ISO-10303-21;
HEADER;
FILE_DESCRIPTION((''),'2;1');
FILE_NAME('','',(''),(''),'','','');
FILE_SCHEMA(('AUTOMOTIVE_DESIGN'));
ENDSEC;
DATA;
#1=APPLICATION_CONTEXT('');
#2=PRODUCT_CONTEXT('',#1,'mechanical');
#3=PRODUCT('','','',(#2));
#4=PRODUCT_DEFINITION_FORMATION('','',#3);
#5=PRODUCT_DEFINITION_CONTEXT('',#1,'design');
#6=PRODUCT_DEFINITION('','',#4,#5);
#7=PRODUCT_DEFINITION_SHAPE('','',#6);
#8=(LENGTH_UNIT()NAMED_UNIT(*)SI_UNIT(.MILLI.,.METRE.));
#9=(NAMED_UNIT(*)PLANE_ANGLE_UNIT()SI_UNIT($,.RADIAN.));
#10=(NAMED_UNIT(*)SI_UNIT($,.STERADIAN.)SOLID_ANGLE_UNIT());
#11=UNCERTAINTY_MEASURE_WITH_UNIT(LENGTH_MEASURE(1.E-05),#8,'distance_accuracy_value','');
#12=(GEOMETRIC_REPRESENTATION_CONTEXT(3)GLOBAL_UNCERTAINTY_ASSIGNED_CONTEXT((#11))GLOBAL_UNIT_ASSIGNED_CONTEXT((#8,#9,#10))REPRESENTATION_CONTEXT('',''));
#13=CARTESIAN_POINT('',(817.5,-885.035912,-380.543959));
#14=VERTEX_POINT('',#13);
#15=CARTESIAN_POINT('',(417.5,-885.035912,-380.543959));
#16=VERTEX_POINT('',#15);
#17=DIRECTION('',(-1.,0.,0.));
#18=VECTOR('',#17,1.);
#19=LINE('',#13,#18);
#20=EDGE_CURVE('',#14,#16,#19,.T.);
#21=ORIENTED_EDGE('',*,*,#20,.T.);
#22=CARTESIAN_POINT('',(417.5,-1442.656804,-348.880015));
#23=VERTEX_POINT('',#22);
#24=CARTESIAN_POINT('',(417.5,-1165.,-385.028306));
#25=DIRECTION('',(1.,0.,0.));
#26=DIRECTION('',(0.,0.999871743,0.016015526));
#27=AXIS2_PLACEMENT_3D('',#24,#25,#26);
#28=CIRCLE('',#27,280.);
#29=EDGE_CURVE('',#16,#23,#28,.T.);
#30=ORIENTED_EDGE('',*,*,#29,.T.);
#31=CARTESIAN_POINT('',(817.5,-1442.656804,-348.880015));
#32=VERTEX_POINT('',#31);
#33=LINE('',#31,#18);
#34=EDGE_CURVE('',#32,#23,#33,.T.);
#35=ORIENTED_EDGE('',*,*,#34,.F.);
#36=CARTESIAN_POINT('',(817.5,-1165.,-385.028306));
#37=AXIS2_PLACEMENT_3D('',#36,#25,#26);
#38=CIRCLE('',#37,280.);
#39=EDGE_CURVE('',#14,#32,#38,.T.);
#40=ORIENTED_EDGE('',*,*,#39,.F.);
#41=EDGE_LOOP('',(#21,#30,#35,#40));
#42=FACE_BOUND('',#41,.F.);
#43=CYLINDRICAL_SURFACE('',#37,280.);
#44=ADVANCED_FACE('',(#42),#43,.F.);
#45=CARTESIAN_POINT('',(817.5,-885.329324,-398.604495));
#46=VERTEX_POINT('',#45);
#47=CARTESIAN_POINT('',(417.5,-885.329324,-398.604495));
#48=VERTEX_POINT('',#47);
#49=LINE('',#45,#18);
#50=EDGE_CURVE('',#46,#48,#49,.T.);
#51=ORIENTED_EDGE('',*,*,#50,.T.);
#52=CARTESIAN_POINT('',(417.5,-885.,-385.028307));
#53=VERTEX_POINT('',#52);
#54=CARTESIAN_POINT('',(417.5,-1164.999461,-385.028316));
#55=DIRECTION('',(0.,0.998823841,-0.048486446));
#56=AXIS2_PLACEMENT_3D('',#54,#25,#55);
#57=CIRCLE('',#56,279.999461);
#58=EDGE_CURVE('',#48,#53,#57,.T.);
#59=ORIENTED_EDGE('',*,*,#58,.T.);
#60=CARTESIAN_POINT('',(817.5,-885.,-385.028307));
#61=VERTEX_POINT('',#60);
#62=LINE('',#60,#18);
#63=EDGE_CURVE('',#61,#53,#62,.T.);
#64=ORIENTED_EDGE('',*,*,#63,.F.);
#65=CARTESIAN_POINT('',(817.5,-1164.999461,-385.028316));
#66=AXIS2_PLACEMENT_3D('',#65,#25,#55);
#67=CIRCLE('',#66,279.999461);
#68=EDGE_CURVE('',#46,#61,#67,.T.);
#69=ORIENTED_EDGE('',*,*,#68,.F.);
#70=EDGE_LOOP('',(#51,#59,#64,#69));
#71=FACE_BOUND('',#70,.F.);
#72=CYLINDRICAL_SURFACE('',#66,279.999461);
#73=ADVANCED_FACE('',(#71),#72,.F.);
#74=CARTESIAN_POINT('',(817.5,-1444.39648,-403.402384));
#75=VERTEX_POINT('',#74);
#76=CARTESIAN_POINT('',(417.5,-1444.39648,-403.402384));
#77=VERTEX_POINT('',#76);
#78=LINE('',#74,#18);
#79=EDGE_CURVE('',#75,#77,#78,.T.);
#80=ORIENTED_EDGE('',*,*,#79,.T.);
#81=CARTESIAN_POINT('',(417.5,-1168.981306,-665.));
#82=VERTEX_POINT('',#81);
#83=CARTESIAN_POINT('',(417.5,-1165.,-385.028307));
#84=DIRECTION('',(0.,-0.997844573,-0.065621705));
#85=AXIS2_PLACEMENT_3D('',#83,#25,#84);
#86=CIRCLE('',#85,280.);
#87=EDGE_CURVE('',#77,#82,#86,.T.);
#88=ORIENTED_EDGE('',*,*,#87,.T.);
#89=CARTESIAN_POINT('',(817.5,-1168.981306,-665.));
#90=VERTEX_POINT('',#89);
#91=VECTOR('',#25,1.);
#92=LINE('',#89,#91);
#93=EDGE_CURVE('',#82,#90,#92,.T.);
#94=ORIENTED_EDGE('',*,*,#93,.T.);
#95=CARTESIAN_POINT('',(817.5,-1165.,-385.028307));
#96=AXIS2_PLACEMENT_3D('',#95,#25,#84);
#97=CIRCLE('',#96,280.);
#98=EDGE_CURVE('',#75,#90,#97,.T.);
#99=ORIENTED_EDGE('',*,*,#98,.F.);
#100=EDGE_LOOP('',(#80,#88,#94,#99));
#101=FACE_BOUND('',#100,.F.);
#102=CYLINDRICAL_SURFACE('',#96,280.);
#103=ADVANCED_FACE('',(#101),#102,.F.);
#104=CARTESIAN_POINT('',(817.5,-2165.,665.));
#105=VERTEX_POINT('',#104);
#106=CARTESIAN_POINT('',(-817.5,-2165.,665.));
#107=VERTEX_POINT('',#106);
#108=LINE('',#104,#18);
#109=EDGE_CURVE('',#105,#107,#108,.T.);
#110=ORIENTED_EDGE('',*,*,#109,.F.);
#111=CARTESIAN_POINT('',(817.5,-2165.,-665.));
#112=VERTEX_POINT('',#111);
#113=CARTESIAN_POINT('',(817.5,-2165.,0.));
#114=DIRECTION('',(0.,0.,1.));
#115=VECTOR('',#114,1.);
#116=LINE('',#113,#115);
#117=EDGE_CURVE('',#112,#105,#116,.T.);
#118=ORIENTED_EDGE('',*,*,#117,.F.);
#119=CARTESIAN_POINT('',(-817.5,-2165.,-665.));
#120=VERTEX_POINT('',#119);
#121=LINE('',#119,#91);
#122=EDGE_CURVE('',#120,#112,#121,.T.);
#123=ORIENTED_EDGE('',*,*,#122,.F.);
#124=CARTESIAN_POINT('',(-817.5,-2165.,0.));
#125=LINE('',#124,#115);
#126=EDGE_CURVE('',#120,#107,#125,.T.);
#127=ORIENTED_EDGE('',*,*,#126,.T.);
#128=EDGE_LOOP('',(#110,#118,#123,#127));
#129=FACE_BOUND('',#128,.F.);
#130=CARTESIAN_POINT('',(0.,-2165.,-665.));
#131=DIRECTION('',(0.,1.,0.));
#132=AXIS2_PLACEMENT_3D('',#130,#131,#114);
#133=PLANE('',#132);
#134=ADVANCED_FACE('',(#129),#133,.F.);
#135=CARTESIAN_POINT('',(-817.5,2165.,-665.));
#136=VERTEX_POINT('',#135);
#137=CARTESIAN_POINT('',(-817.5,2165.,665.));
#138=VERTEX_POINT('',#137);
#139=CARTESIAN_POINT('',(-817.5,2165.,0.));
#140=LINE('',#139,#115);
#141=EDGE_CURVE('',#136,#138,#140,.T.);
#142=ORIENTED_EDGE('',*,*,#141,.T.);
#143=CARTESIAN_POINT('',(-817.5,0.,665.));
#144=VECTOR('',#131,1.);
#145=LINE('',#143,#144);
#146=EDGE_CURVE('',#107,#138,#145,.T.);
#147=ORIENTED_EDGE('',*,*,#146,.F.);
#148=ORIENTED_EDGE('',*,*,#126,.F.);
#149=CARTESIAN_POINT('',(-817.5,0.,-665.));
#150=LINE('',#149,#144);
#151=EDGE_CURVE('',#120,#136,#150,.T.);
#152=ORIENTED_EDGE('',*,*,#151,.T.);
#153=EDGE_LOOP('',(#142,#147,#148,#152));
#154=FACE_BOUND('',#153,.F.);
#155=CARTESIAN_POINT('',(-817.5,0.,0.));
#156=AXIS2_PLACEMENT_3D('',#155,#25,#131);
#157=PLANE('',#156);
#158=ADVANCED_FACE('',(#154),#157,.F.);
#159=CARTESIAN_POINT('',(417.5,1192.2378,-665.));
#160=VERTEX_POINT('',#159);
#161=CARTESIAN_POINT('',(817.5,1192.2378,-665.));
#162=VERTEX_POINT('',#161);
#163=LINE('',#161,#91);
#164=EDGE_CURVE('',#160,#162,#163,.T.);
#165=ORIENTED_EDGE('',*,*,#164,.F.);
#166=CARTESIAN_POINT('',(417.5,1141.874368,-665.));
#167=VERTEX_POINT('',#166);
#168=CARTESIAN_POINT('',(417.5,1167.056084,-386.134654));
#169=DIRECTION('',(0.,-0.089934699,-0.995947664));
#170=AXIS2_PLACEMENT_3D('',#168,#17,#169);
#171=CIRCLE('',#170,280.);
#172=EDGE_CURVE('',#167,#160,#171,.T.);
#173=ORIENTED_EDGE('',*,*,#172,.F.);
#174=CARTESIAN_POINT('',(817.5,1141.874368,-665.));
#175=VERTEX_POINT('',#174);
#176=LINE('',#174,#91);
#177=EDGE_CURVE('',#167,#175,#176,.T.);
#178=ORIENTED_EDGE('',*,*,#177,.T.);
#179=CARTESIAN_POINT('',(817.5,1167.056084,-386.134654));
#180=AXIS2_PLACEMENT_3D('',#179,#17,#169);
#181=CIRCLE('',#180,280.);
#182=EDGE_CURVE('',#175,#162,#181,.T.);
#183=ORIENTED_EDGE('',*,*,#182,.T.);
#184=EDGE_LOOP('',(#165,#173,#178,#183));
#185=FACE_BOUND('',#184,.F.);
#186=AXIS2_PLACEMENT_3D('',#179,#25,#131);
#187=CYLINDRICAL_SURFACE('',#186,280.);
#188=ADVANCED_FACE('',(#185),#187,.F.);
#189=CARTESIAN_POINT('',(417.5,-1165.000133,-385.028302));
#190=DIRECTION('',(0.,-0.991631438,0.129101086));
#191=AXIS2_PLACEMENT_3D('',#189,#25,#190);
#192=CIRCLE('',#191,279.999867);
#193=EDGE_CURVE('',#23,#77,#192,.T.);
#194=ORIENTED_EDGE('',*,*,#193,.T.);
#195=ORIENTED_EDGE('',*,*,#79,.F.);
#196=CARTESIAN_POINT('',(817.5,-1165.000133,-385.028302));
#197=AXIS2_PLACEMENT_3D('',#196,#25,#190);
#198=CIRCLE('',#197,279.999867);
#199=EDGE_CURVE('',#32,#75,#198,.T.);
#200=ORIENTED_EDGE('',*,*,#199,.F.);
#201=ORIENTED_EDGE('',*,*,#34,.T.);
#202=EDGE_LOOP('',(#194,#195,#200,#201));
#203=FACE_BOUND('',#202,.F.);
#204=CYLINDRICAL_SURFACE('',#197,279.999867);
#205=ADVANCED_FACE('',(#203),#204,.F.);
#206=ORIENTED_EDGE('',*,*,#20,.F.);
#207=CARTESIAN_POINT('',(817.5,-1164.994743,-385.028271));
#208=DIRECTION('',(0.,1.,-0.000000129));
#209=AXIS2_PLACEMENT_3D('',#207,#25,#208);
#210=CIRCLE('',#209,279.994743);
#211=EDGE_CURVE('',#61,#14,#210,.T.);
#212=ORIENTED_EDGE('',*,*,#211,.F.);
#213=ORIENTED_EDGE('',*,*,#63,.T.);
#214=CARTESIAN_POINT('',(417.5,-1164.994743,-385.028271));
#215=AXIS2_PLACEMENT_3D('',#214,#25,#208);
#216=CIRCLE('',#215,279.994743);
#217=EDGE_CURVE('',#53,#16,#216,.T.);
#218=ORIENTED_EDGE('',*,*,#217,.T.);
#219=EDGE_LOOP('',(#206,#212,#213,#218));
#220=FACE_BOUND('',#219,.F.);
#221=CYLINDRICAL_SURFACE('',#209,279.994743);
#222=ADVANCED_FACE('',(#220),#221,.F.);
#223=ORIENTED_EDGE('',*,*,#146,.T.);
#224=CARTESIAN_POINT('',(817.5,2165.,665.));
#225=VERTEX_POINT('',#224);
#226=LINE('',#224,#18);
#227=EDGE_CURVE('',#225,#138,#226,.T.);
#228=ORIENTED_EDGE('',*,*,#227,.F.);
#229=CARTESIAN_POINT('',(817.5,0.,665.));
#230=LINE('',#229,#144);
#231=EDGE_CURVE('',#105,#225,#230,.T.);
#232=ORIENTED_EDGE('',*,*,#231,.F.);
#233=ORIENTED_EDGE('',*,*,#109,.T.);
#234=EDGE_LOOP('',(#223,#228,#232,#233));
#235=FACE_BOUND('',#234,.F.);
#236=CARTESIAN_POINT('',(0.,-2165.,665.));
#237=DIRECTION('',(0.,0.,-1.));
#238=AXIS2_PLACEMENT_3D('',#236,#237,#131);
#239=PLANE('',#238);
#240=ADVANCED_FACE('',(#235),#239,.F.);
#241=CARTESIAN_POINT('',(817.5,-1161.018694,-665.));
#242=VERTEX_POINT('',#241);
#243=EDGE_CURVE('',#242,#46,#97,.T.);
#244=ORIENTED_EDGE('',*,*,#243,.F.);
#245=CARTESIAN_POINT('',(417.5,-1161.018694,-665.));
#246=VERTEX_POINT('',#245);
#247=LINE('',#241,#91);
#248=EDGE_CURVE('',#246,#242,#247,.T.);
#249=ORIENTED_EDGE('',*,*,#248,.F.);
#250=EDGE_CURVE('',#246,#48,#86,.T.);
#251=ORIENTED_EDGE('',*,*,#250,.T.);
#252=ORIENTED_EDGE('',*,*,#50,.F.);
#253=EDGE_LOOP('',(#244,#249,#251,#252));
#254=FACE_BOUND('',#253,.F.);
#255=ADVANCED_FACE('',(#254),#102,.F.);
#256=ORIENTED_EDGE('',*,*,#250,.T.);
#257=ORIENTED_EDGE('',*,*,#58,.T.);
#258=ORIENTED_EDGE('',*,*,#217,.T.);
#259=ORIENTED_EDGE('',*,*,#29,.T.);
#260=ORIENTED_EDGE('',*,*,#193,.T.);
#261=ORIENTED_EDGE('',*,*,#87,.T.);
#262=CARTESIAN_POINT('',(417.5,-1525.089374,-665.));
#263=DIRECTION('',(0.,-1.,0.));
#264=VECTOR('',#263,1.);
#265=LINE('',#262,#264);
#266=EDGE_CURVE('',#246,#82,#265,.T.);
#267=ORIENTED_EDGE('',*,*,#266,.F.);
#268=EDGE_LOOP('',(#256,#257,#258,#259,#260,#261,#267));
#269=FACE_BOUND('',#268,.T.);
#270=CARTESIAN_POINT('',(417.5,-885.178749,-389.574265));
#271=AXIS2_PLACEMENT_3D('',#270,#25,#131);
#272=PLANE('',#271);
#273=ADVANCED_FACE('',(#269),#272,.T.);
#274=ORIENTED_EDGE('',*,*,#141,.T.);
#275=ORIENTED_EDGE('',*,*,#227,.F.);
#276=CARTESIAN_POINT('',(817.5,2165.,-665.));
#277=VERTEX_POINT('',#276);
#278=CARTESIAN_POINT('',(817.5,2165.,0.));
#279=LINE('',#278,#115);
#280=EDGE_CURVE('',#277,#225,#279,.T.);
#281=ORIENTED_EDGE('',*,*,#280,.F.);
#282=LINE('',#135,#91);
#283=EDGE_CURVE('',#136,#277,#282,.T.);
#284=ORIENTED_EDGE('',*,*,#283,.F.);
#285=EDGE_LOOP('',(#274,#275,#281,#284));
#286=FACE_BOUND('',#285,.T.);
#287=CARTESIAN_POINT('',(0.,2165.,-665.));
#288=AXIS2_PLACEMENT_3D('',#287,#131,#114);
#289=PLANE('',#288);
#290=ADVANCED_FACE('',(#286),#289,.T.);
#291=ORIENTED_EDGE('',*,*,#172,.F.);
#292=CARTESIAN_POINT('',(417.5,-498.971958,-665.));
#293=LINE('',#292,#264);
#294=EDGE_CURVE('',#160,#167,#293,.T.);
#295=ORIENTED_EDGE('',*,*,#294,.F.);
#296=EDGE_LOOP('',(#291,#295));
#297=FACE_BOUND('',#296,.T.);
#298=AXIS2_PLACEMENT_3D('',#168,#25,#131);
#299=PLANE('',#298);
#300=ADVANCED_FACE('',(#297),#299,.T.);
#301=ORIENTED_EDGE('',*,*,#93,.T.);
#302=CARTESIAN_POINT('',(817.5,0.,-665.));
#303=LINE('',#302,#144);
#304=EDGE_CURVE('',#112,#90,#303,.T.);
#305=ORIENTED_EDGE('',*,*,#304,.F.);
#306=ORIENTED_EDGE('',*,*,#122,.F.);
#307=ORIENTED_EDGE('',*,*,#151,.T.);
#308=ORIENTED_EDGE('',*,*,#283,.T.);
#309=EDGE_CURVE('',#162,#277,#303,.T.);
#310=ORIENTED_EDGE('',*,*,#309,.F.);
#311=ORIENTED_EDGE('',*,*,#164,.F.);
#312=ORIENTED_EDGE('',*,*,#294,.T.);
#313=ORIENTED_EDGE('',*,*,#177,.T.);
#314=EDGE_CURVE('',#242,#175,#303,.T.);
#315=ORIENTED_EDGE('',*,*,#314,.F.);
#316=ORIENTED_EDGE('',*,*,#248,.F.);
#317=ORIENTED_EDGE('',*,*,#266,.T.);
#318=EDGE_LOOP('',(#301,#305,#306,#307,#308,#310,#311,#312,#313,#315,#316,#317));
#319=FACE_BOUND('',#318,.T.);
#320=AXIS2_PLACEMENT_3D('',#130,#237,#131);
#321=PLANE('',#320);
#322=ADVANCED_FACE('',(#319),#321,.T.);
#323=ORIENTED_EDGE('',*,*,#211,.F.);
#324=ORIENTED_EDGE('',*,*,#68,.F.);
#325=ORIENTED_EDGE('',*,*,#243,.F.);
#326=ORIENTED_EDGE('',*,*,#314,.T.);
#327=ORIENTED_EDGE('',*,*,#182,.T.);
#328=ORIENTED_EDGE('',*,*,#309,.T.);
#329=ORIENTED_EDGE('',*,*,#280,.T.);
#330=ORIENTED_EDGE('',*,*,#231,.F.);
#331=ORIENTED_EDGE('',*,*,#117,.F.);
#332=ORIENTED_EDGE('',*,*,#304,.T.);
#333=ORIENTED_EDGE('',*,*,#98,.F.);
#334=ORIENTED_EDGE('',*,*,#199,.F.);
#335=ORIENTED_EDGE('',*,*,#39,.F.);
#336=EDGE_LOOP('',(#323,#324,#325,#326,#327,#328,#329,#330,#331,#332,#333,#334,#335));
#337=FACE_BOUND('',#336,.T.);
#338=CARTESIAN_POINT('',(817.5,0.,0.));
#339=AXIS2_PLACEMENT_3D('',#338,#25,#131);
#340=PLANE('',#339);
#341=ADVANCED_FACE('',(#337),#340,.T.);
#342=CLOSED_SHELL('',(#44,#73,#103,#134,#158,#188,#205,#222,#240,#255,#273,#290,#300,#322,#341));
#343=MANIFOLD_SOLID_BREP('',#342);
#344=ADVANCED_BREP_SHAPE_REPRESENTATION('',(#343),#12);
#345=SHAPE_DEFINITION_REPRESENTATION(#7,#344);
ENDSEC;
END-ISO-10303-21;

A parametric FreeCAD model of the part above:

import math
import FreeCAD as App
import Part
import Sketcher
from FreeCAD import Vector
Q = App.Units.Quantity


def add_polygon(sketch, points):
    """Adds a closed chain of lines whose ends are joined by coincident constraints."""
    first, n = sketch.GeometryCount, len(points)
    for a, b in zip(points, points[1:] + points[:1]):
        sketch.addGeometry(Part.LineSegment(App.Vector(*a, 0), App.Vector(*b, 0)), False)
    for i in range(n):
        sketch.addConstraint(Sketcher.Constraint("Coincident", first + i, 2, first + (i + 1) % n, 1))

doc = App.newDocument("Part")
body = doc.addObject("PartDesign::Body", "Body")

# Sketch on YZ plane
sketch1 = doc.addObject("Sketcher::SketchObject", "Sketch")
body.addObject(sketch1)
sketch1.AttachmentSupport = (doc.YZ_Plane, [""])
sketch1.MapMode = "FlatFace"
add_polygon(sketch1, [(-2165, 665), (-2165, -665), (2165, -665), (2165, 665)])  # lines 0-3
sketch1.addConstraint([
    Sketcher.Constraint("Vertical", 0),
    Sketcher.Constraint("Horizontal", 1),
    Sketcher.Constraint("Vertical", 2),
    Sketcher.Constraint("Horizontal", 3),
    Sketcher.Constraint("Symmetric", 0, 2, 2, 2, -1, 1),
    Sketcher.Constraint("DistanceX", 1, 1, 1, 2, Q("4330 mm")),
    Sketcher.Constraint("DistanceY", 0, 2, 0, 1, Q("1330 mm")),
])
pad1 = doc.addObject("PartDesign::Pad", "Pad")
body.addObject(pad1)
pad1.Profile = sketch1
pad1.Type = "TwoLengths"
pad1.Length = 817.5
pad1.Length2 = 817.5

# Sketch on YZ plane
sketch2 = doc.addObject("Sketcher::SketchObject", "Sketch001")
body.addObject(sketch2)
sketch2.AttachmentSupport = (doc.YZ_Plane, [""])
sketch2.MapMode = "FlatFace"
sketch2.AttachmentOffset = App.Placement(Vector(0, 0, 817.5), App.Rotation())
sketch2.addGeometry([
    Part.ArcOfCircle(Part.Circle(Vector(-1164.999461, -385.028316, 0), Vector(0, 0, 1), 279.999461), math.radians(-2.779158), math.radians(0.000002)),  # 0
    Part.ArcOfCircle(Part.Circle(Vector(-1164.994743, -385.028271, 0), Vector(0, 0, 1), 279.994743), math.radians(-0.000007), math.radians(0.917671)),  # 1
    Part.ArcOfCircle(Part.Circle(Vector(-1165, -385.028306, 0), Vector(0, 0, 1), 280), math.radians(0.917661), math.radians(172.582352)),  # 2
    Part.ArcOfCircle(Part.Circle(Vector(-1165.000133, -385.028302, 0), Vector(0, 0, 1), 279.999867), math.radians(172.582349), math.radians(183.762553)),  # 3
    Part.ArcOfCircle(Part.Circle(Vector(-1165, -385.028307, 0), Vector(0, 0, 1), 280), math.radians(-176.23745), math.radians(-2.779155)),  # 4
], False)
sketch2.addConstraint([
    Sketcher.Constraint("Coincident", 0, 2, 1, 1),
    Sketcher.Constraint("Coincident", 1, 2, 2, 1),
    Sketcher.Constraint("Coincident", 2, 2, 3, 1),
    Sketcher.Constraint("Coincident", 3, 2, 4, 1),
    Sketcher.Constraint("Coincident", 4, 2, 0, 1),
    Sketcher.Constraint("Coincident", 4, 3, 2, 3),
    Sketcher.Constraint("Radius", 2, Q("280 mm")),
    Sketcher.Constraint("Radius", 4, Q("280 mm")),
    Sketcher.Constraint("DistanceX", 2, 3, -1, 1, Q("1165 mm")),
    Sketcher.Constraint("DistanceX", 0, 2, -1, 1, Q("885 mm")),
    Sketcher.Constraint("Radius", 0, Q("279.999461 mm")),
    Sketcher.Constraint("Radius", 1, Q("279.994743 mm")),
    Sketcher.Constraint("Radius", 3, Q("279.999867 mm")),
    Sketcher.Constraint("DistanceY", 0, 3, 2, 2, Q("36.148301 mm")),
    Sketcher.Constraint("DistanceY", 1, 3, -1, 1, Q("385.028271 mm")),
    Sketcher.Constraint("DistanceY", 1, 2, -1, 1, Q("380.543959 mm")),
    Sketcher.Constraint("DistanceX", 3, 2, -1, 1, Q("1444.39648 mm")),
    Sketcher.Constraint("DistanceX", 1, 3, 4, 2, Q("279.665419 mm")),
    Sketcher.Constraint("DistanceY", 0, 2, -1, 1, Q("385.028307 mm")),
])
pocket1 = doc.addObject("PartDesign::Pocket", "Pocket")
body.addObject(pocket1)
pocket1.Profile = sketch2
pocket1.Length = 400

# Sketch on YZ plane
sketch3 = doc.addObject("Sketcher::SketchObject", "Sketch002")
body.addObject(sketch3)
sketch3.AttachmentSupport = (doc.YZ_Plane, [""])
sketch3.MapMode = "FlatFace"
sketch3.AttachmentOffset = App.Placement(Vector(0, 0, 817.5), App.Rotation())
sketch3.addGeometry(Part.Circle(Vector(1167.056084, -386.134654, 0), Vector(0, 0, 1), 280), False)
sketch3.addConstraint([
    Sketcher.Constraint("Diameter", 0, Q("560 mm")),
    Sketcher.Constraint("DistanceX", -1, 1, 0, 3, Q("1167.056084 mm")),
    Sketcher.Constraint("DistanceY", 0, 3, -1, 1, Q("386.134654 mm")),
])
pocket2 = doc.addObject("PartDesign::Pocket", "Pocket001")
body.addObject(pocket2)
pocket2.Profile = sketch3
pocket2.Length = 400

doc.recompute()
